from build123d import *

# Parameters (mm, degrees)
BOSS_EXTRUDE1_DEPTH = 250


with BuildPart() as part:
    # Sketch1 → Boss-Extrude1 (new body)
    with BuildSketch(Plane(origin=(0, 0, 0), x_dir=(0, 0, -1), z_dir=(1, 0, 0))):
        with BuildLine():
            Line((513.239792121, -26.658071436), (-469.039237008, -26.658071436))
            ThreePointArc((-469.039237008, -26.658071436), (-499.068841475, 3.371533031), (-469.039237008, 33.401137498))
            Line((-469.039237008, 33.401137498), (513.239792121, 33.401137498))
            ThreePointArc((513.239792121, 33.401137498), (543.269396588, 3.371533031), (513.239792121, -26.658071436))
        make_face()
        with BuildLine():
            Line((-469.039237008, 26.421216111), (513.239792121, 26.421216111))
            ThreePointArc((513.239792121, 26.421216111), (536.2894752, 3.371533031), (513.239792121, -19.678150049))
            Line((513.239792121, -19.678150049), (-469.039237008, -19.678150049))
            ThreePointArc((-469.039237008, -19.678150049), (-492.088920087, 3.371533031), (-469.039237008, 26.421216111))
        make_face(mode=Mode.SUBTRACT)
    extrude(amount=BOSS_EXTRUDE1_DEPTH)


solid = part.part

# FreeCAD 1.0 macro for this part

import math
import FreeCAD as App
import Part
import Sketcher
from FreeCAD import Vector

doc = App.newDocument("Part")
body = doc.addObject("PartDesign::Body", "Body")

# Sketch on YZ plane
sketch1 = body.newObject("Sketcher::SketchObject", "Sketch")
sketch1.AttachmentSupport = (doc.getObject("YZ_Plane"), [""])
sketch1.MapMode = "FlatFace"
sketch1.addGeometry([
    Part.LineSegment(Vector(-27, 469, 0), Vector(-27, -513, 0)),  # 0
    Part.ArcOfCircle(Part.Circle(Vector(3, -513, 0), Vector(0, 0, 1), 30), math.radians(180), math.radians(360)),  # 1
    Part.LineSegment(Vector(33, -513, 0), Vector(33, 469, 0)),  # 2
    Part.ArcOfCircle(Part.Circle(Vector(3, 469, 0), Vector(0, 0, 1), 30), math.radians(0), math.radians(180)),  # 3
    Part.LineSegment(Vector(26, 469, 0), Vector(26, -513, 0)),  # 4
    Part.ArcOfCircle(Part.Circle(Vector(3, -513, 0), Vector(0, 0, 1), 23), math.radians(-180), math.radians(0)),  # 5
    Part.LineSegment(Vector(-20, -513, 0), Vector(-20, 469, 0)),  # 6
    Part.ArcOfCircle(Part.Circle(Vector(3, 469, 0), Vector(0, 0, 1), 23), math.radians(0), math.radians(180)),  # 7
], False)
sketch1.addConstraint([
    Sketcher.Constraint("Tangent", 0, 2, 1, 1),
    Sketcher.Constraint("Tangent", 1, 2, 2, 1),
    Sketcher.Constraint("Tangent", 2, 2, 3, 1),
    Sketcher.Constraint("Tangent", 3, 2, 0, 1),
    Sketcher.Constraint("Tangent", 4, 2, 5, 2),
    Sketcher.Constraint("Tangent", 5, 1, 6, 1),
    Sketcher.Constraint("Tangent", 6, 2, 7, 2),
    Sketcher.Constraint("Tangent", 7, 1, 4, 1),
    Sketcher.Constraint("Vertical", 0),
    Sketcher.Constraint("Vertical", 2),
    Sketcher.Constraint("Vertical", 4),
    Sketcher.Constraint("Vertical", 6),
    Sketcher.Constraint("Coincident", 5, 3, 1, 3),
    Sketcher.Constraint("Horizontal", 7, 3, 2, 2),
    Sketcher.Constraint("Radius", 1, 30.029604),
    Sketcher.Constraint("Radius", 5, 23.049683),
    Sketcher.Constraint("DistanceY", 0, 2, 0, 1, 982.279029),
    Sketcher.Constraint("DistanceX", 0, 2, -1, 1, 26.658071),
    Sketcher.Constraint("DistanceY", 1, 3, -1, 1, 513.239792),
])
pad1 = body.newObject("PartDesign::Pad", "Pad")
pad1.Profile = sketch1
pad1.Length = 250

doc.recompute()
